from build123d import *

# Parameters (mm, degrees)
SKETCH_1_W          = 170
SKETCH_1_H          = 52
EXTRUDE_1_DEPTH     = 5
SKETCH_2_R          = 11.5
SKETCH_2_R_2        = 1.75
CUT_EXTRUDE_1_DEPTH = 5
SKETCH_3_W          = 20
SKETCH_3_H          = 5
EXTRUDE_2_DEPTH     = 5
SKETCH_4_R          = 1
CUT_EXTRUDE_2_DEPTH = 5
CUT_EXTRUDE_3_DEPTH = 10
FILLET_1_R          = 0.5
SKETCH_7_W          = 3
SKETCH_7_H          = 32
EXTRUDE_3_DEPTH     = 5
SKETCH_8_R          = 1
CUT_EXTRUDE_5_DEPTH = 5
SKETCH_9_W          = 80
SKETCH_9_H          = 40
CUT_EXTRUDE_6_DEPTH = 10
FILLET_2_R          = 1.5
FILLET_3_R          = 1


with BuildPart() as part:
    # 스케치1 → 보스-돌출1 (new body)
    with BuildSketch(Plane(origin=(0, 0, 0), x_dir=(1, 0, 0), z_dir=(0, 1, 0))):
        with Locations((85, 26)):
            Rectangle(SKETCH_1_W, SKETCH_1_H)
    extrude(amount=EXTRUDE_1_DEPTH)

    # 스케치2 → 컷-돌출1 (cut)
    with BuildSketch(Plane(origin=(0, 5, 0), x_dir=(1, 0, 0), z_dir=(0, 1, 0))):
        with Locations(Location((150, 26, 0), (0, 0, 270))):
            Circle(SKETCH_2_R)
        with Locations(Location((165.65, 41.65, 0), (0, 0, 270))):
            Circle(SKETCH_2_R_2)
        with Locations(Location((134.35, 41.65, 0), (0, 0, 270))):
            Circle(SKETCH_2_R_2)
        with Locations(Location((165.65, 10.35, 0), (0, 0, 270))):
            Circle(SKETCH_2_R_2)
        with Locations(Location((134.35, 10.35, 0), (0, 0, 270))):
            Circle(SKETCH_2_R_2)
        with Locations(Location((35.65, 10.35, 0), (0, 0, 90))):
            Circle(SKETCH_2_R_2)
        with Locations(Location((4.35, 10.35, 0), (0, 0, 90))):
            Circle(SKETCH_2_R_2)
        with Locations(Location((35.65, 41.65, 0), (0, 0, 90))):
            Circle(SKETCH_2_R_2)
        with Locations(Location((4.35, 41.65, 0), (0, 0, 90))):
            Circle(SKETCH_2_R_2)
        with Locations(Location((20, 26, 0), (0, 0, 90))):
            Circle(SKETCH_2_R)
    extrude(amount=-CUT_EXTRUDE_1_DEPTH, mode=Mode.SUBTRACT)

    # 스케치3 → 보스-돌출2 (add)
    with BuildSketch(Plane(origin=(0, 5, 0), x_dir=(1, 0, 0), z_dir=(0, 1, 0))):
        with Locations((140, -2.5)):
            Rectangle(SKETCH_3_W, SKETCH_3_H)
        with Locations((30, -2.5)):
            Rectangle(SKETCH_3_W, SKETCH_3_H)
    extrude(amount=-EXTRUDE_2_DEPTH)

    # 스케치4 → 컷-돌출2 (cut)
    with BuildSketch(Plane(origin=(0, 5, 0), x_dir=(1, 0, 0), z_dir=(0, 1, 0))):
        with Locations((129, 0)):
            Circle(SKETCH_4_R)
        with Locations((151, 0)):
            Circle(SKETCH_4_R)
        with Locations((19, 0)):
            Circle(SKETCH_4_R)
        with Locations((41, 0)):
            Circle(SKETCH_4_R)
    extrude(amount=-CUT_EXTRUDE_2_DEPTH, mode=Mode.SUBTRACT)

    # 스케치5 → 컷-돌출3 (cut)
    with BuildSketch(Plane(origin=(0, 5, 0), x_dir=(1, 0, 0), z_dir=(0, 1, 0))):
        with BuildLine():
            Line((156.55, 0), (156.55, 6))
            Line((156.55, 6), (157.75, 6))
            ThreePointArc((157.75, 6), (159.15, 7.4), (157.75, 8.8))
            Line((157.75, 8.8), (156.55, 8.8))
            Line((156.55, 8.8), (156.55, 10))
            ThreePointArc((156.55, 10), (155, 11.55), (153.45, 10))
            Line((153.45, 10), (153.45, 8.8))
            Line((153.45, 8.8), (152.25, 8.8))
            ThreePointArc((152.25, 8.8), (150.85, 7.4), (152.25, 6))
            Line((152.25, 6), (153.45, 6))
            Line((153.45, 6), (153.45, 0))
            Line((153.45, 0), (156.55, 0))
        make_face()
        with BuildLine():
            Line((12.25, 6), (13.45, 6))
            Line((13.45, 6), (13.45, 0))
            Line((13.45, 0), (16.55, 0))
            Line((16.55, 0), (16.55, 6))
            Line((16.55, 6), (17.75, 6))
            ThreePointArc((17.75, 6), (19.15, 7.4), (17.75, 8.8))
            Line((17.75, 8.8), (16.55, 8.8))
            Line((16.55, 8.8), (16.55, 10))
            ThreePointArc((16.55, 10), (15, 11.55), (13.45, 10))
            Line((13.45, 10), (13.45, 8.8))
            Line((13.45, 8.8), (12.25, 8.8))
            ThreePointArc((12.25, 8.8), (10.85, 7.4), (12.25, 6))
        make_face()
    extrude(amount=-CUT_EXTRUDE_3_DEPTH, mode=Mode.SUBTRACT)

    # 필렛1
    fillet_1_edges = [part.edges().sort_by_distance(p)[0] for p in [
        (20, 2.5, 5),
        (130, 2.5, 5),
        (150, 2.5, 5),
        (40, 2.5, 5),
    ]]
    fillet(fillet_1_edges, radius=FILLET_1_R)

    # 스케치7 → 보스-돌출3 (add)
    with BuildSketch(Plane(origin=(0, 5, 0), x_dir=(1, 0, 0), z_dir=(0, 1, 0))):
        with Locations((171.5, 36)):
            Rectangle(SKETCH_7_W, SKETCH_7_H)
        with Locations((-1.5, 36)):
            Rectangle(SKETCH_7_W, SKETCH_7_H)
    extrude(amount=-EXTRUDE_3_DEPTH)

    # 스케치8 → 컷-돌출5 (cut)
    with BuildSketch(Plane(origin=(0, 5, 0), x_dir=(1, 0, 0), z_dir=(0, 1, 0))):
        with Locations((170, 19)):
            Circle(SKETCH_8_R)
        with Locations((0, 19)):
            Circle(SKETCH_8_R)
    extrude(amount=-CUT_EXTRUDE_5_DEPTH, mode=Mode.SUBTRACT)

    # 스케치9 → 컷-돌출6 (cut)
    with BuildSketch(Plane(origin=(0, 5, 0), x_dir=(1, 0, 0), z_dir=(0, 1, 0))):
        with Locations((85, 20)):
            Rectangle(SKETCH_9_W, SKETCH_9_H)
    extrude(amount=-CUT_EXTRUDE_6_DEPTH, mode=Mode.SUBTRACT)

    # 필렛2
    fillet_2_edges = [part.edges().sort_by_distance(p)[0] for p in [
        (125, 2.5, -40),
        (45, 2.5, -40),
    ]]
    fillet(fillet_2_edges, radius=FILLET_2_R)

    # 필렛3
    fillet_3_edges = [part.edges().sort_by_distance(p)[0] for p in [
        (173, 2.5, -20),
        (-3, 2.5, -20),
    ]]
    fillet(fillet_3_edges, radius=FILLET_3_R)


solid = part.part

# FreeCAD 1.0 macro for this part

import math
import FreeCAD as App
import Part
import Sketcher
from FreeCAD import Vector
Q = App.Units.Quantity


def edges_at(feature, points):
    """Names of the edges that pass closest to the given points."""
    edges = feature.Shape.Edges
    near = lambda p: min(range(len(edges)), key=lambda i: edges[i].distToShape(Part.Vertex(*p))[0])
    return sorted({f"Edge{near(p) + 1}" for p in points})

doc = App.newDocument("Part")
body = doc.addObject("PartDesign::Body", "Body")

# Sketch on XZ plane
sketch1 = body.newObject("Sketcher::SketchObject", "Sketch")
sketch1.AttachmentSupport = (doc.getObject("XZ_Plane"), [""])
sketch1.MapMode = "FlatFace"
sketch1.addGeometry(Part.LineSegment(Vector(0, -52, 0), Vector(0, 0, 0)), False)
sketch1.addGeometry(Part.LineSegment(Vector(0, 0, 0), Vector(170, 0, 0)), False)
sketch1.addGeometry(Part.LineSegment(Vector(170, 0, 0), Vector(170, -52, 0)), False)
sketch1.addGeometry(Part.LineSegment(Vector(170, -52, 0), Vector(0, -52, 0)), False)
sketch1.addConstraint(Sketcher.Constraint("Coincident", 0, 2, 1, 1))
sketch1.addConstraint(Sketcher.Constraint("Coincident", 1, 2, 2, 1))
sketch1.addConstraint(Sketcher.Constraint("Coincident", 2, 2, 3, 1))
sketch1.addConstraint(Sketcher.Constraint("Coincident", 3, 2, 0, 1))
sketch1.addConstraint(Sketcher.Constraint("Vertical", 0))
sketch1.addConstraint(Sketcher.Constraint("Horizontal", 1))
sketch1.addConstraint(Sketcher.Constraint("Vertical", 2))
sketch1.addConstraint(Sketcher.Constraint("Horizontal", 3))
sketch1.addConstraint(Sketcher.Constraint("Coincident", 0, 2, -1, 1))
sketch1.addConstraint(Sketcher.Constraint("DistanceX", 1, 1, 1, 2, Q("170 mm")))
sketch1.addConstraint(Sketcher.Constraint("DistanceY", 0, 1, 0, 2, Q("52 mm")))
pad1 = body.newObject("PartDesign::Pad", "Pad")
pad1.Profile = sketch1
pad1.Length = 5
pad1.Reversed = True

# Sketch on XZ plane
sketch2 = body.newObject("Sketcher::SketchObject", "Sketch001")
sketch2.AttachmentSupport = (doc.getObject("XZ_Plane"), [""])
sketch2.MapMode = "FlatFace"
sketch2.AttachmentOffset = App.Placement(Vector(0, 0, -5), App.Rotation())
sketch2.addGeometry(Part.Circle(Vector(150, -26, 0), Vector(0, 0, 1), 11.5), False)
sketch2.addGeometry(Part.Circle(Vector(165.7, -41.6, 0), Vector(0, 0, 1), 1.8), False)
sketch2.addGeometry(Part.Circle(Vector(134.3, -41.6, 0), Vector(0, 0, 1), 1.8), False)
sketch2.addGeometry(Part.Circle(Vector(165.7, -10.3, 0), Vector(0, 0, 1), 1.8), False)
sketch2.addGeometry(Part.Circle(Vector(134.3, -10.3, 0), Vector(0, 0, 1), 1.8), False)
sketch2.addGeometry(Part.Circle(Vector(35.6, -10.3, 0), Vector(0, 0, 1), 1.8), False)
sketch2.addGeometry(Part.Circle(Vector(4.3, -10.3, 0), Vector(0, 0, 1), 1.8), False)
sketch2.addGeometry(Part.Circle(Vector(35.6, -41.6, 0), Vector(0, 0, 1), 1.8), False)
sketch2.addGeometry(Part.Circle(Vector(4.3, -41.6, 0), Vector(0, 0, 1), 1.8), False)
sketch2.addGeometry(Part.Circle(Vector(20, -26, 0), Vector(0, 0, 1), 11.5), False)
sketch2.addConstraint(Sketcher.Constraint("Equal", 1, 2))
sketch2.addConstraint(Sketcher.Constraint("Equal", 2, 3))
sketch2.addConstraint(Sketcher.Constraint("Equal", 3, 4))
sketch2.addConstraint(Sketcher.Constraint("Equal", 4, 5))
sketch2.addConstraint(Sketcher.Constraint("Equal", 5, 6))
sketch2.addConstraint(Sketcher.Constraint("Equal", 6, 7))
sketch2.addConstraint(Sketcher.Constraint("Equal", 7, 8))
sketch2.addConstraint(Sketcher.Constraint("Equal", 0, 9))
sketch2.addConstraint(Sketcher.Constraint("Horizontal", 1, 3, 2, 3))
sketch2.addConstraint(Sketcher.Constraint("Horizontal", 3, 3, 4, 3))
sketch2.addConstraint(Sketcher.Constraint("Horizontal", 4, 3, 5, 3))
sketch2.addConstraint(Sketcher.Constraint("Horizontal", 5, 3, 6, 3))
sketch2.addConstraint(Sketcher.Constraint("Horizontal", 2, 3, 7, 3))
sketch2.addConstraint(Sketcher.Constraint("Horizontal", 7, 3, 8, 3))
sketch2.addConstraint(Sketcher.Constraint("Horizontal", 0, 3, 9, 3))
sketch2.addConstraint(Sketcher.Constraint("Vertical", 1, 3, 3, 3))
sketch2.addConstraint(Sketcher.Constraint("Vertical", 2, 3, 4, 3))
sketch2.addConstraint(Sketcher.Constraint("Vertical", 5, 3, 7, 3))
sketch2.addConstraint(Sketcher.Constraint("Vertical", 6, 3, 8, 3))
sketch2.addConstraint(Sketcher.Constraint("Diameter", 0, Q("23 mm")))
sketch2.addConstraint(Sketcher.Constraint("Diameter", 1, Q("3.5 mm")))
sketch2.addConstraint(Sketcher.Constraint("DistanceX", -1, 1, 0, 3, Q("150 mm")))
sketch2.addConstraint(Sketcher.Constraint("DistanceY", 0, 3, -1, 1, Q("26 mm")))
sketch2.addConstraint(Sketcher.Constraint("DistanceX", -1, 1, 9, 3, Q("20 mm")))
sketch2.addConstraint(Sketcher.Constraint("DistanceX", 5, 3, 3, 3, Q("130 mm")))
sketch2.addConstraint(Sketcher.Constraint("DistanceX", 6, 3, 4, 3, Q("130 mm")))
sketch2.addConstraint(Sketcher.Constraint("DistanceX", 2, 3, 1, 3, Q("31.3 mm")))
sketch2.addConstraint(Sketcher.Constraint("DistanceY", 1, 3, 3, 3, Q("31.3 mm")))
sketch2.addConstraint(Sketcher.Constraint("DistanceX", -1, 1, 1, 3, Q("165.65 mm")))
sketch2.addConstraint(Sketcher.Constraint("DistanceY", 1, 3, -1, 1, Q("41.65 mm")))
pocket1 = body.newObject("PartDesign::Pocket", "Pocket")
pocket1.Profile = sketch2
pocket1.Length = 5
pocket1.Reversed = True

# Sketch on XZ plane
sketch3 = body.newObject("Sketcher::SketchObject", "Sketch002")
sketch3.AttachmentSupport = (doc.getObject("XZ_Plane"), [""])
sketch3.MapMode = "FlatFace"
sketch3.AttachmentOffset = App.Placement(Vector(0, 0, -5), App.Rotation())
sketch3.addGeometry(Part.LineSegment(Vector(130, 0, 0), Vector(130, 5, 0)), False)
sketch3.addGeometry(Part.LineSegment(Vector(130, 5, 0), Vector(150, 5, 0)), False)
sketch3.addGeometry(Part.LineSegment(Vector(150, 5, 0), Vector(150, 0, 0)), False)
sketch3.addGeometry(Part.LineSegment(Vector(150, 0, 0), Vector(130, 0, 0)), False)
sketch3.addGeometry(Part.LineSegment(Vector(20, 0, 0), Vector(20, 5, 0)), False)
sketch3.addGeometry(Part.LineSegment(Vector(20, 5, 0), Vector(40, 5, 0)), False)
sketch3.addGeometry(Part.LineSegment(Vector(40, 5, 0), Vector(40, 0, 0)), False)
sketch3.addGeometry(Part.LineSegment(Vector(40, 0, 0), Vector(20, 0, 0)), False)
sketch3.addConstraint(Sketcher.Constraint("Coincident", 0, 2, 1, 1))
sketch3.addConstraint(Sketcher.Constraint("Coincident", 1, 2, 2, 1))
sketch3.addConstraint(Sketcher.Constraint("Coincident", 2, 2, 3, 1))
sketch3.addConstraint(Sketcher.Constraint("Coincident", 3, 2, 0, 1))
sketch3.addConstraint(Sketcher.Constraint("Coincident", 4, 2, 5, 1))
sketch3.addConstraint(Sketcher.Constraint("Coincident", 5, 2, 6, 1))
sketch3.addConstraint(Sketcher.Constraint("Coincident", 6, 2, 7, 1))
sketch3.addConstraint(Sketcher.Constraint("Coincident", 7, 2, 4, 1))
sketch3.addConstraint(Sketcher.Constraint("Vertical", 0))
sketch3.addConstraint(Sketcher.Constraint("Horizontal", 1))
sketch3.addConstraint(Sketcher.Constraint("Vertical", 2))
sketch3.addConstraint(Sketcher.Constraint("Horizontal", 3))
sketch3.addConstraint(Sketcher.Constraint("Vertical", 4))
sketch3.addConstraint(Sketcher.Constraint("Horizontal", 5))
sketch3.addConstraint(Sketcher.Constraint("Vertical", 6))
sketch3.addConstraint(Sketcher.Constraint("Horizontal", 7))
sketch3.addConstraint(Sketcher.Constraint("PointOnObject", 2, 2, -1))
sketch3.addConstraint(Sketcher.Constraint("PointOnObject", 6, 2, -1))
sketch3.addConstraint(Sketcher.Constraint("Horizontal", 1, 2, 4, 2))
sketch3.addConstraint(Sketcher.Constraint("Equal", 3, 5))
sketch3.addConstraint(Sketcher.Constraint("DistanceX", 1, 1, 1, 2, Q("20 mm")))
sketch3.addConstraint(Sketcher.Constraint("DistanceY", 0, 1, 0, 2, Q("5 mm")))
sketch3.addConstraint(Sketcher.Constraint("DistanceX", -1, 1, 0, 2, Q("130 mm")))
sketch3.addConstraint(Sketcher.Constraint("DistanceX", -1, 1, 4, 2, Q("20 mm")))
pad2 = body.newObject("PartDesign::Pad", "Pad001")
pad2.Profile = sketch3
pad2.Length = 5

# Sketch on XZ plane
sketch4 = body.newObject("Sketcher::SketchObject", "Sketch003")
sketch4.AttachmentSupport = (doc.getObject("XZ_Plane"), [""])
sketch4.MapMode = "FlatFace"
sketch4.AttachmentOffset = App.Placement(Vector(0, 0, -5), App.Rotation())
sketch4.addGeometry(Part.Circle(Vector(129, 0, 0), Vector(0, 0, 1), 1), False)
sketch4.addGeometry(Part.Circle(Vector(151, 0, 0), Vector(0, 0, 1), 1), False)
sketch4.addGeometry(Part.Circle(Vector(19, 0, 0), Vector(0, 0, 1), 1), False)
sketch4.addGeometry(Part.Circle(Vector(41, 0, 0), Vector(0, 0, 1), 1), False)
sketch4.addConstraint(Sketcher.Constraint("Equal", 0, 1))
sketch4.addConstraint(Sketcher.Constraint("Equal", 1, 2))
sketch4.addConstraint(Sketcher.Constraint("Equal", 2, 3))
sketch4.addConstraint(Sketcher.Constraint("PointOnObject", 0, 3, -1))
sketch4.addConstraint(Sketcher.Constraint("PointOnObject", 1, 3, -1))
sketch4.addConstraint(Sketcher.Constraint("PointOnObject", 2, 3, -1))
sketch4.addConstraint(Sketcher.Constraint("PointOnObject", 3, 3, -1))
sketch4.addConstraint(Sketcher.Constraint("Diameter", 0, Q("2 mm")))
sketch4.addConstraint(Sketcher.Constraint("DistanceX", -1, 1, 0, 3, Q("129 mm")))
sketch4.addConstraint(Sketcher.Constraint("DistanceX", -1, 1, 1, 3, Q("151 mm")))
sketch4.addConstraint(Sketcher.Constraint("DistanceX", -1, 1, 2, 3, Q("19 mm")))
sketch4.addConstraint(Sketcher.Constraint("DistanceX", -1, 1, 3, 3, Q("41 mm")))
pocket2 = body.newObject("PartDesign::Pocket", "Pocket001")
pocket2.Profile = sketch4
pocket2.Length = 5
pocket2.Reversed = True

# Sketch on XZ plane
sketch5 = body.newObject("Sketcher::SketchObject", "Sketch004")
sketch5.AttachmentSupport = (doc.getObject("XZ_Plane"), [""])
sketch5.MapMode = "FlatFace"
sketch5.AttachmentOffset = App.Placement(Vector(0, 0, -5), App.Rotation())
sketch5.addGeometry(Part.LineSegment(Vector(156.6, 0, 0), Vector(156.6, -6, 0)), False)
sketch5.addGeometry(Part.LineSegment(Vector(156.6, -6, 0), Vector(157.8, -6, 0)), False)
sketch5.addGeometry(Part.ArcOfCircle(Part.Circle(Vector(157.8, -7.4, 0), Vector(0, 0, 1), 1.4), math.radians(-90), math.radians(90)), False)
sketch5.addGeometry(Part.LineSegment(Vector(157.8, -8.8, 0), Vector(156.6, -8.8, 0)), False)
sketch5.addGeometry(Part.LineSegment(Vector(156.6, -8.8, 0), Vector(156.6, -10, 0)), False)
sketch5.addGeometry(Part.ArcOfCircle(Part.Circle(Vector(155, -10, 0), Vector(0, 0, 1), 1.6), math.radians(180), math.radians(360)), False)
sketch5.addGeometry(Part.LineSegment(Vector(153.4, -10, 0), Vector(153.4, -8.8, 0)), False)
sketch5.addGeometry(Part.LineSegment(Vector(153.4, -8.8, 0), Vector(152.2, -8.8, 0)), False)
sketch5.addGeometry(Part.ArcOfCircle(Part.Circle(Vector(152.2, -7.4, 0), Vector(0, 0, 1), 1.4), math.radians(90), math.radians(270)), False)
sketch5.addGeometry(Part.LineSegment(Vector(152.2, -6, 0), Vector(153.4, -6, 0)), False)
sketch5.addGeometry(Part.LineSegment(Vector(153.4, -6, 0), Vector(153.4, 0, 0)), False)
sketch5.addGeometry(Part.LineSegment(Vector(153.4, 0, 0), Vector(156.6, 0, 0)), False)
sketch5.addGeometry(Part.LineSegment(Vector(12.2, -6, 0), Vector(13.4, -6, 0)), False)
sketch5.addGeometry(Part.LineSegment(Vector(13.4, -6, 0), Vector(13.4, 0, 0)), False)
sketch5.addGeometry(Part.LineSegment(Vector(13.4, 0, 0), Vector(16.6, 0, 0)), False)
sketch5.addGeometry(Part.LineSegment(Vector(16.6, 0, 0), Vector(16.6, -6, 0)), False)
sketch5.addGeometry(Part.LineSegment(Vector(16.6, -6, 0), Vector(17.8, -6, 0)), False)
sketch5.addGeometry(Part.ArcOfCircle(Part.Circle(Vector(17.8, -7.4, 0), Vector(0, 0, 1), 1.4), math.radians(-90), math.radians(90)), False)
sketch5.addGeometry(Part.LineSegment(Vector(17.8, -8.8, 0), Vector(16.6, -8.8, 0)), False)
sketch5.addGeometry(Part.LineSegment(Vector(16.6, -8.8, 0), Vector(16.6, -10, 0)), False)
sketch5.addGeometry(Part.ArcOfCircle(Part.Circle(Vector(15, -10, 0), Vector(0, 0, 1), 1.6), math.radians(180), math.radians(360)), False)
sketch5.addGeometry(Part.LineSegment(Vector(13.4, -10, 0), Vector(13.4, -8.8, 0)), False)
sketch5.addGeometry(Part.LineSegment(Vector(13.4, -8.8, 0), Vector(12.2, -8.8, 0)), False)
sketch5.addGeometry(Part.ArcOfCircle(Part.Circle(Vector(12.2, -7.4, 0), Vector(0, 0, 1), 1.4), math.radians(90), math.radians(270)), False)
sketch5.addConstraint(Sketcher.Constraint("Coincident", 0, 2, 1, 1))
sketch5.addConstraint(Sketcher.Constraint("Tangent", 1, 2, 2, 2))
sketch5.addConstraint(Sketcher.Constraint("Tangent", 2, 1, 3, 1))
sketch5.addConstraint(Sketcher.Constraint("Coincident", 3, 2, 4, 1))
sketch5.addConstraint(Sketcher.Constraint("Tangent", 4, 2, 5, 2))
sketch5.addConstraint(Sketcher.Constraint("Tangent", 5, 1, 6, 1))
sketch5.addConstraint(Sketcher.Constraint("Coincident", 6, 2, 7, 1))
sketch5.addConstraint(Sketcher.Constraint("Tangent", 7, 2, 8, 2))
sketch5.addConstraint(Sketcher.Constraint("Tangent", 8, 1, 9, 1))
sketch5.addConstraint(Sketcher.Constraint("Coincident", 9, 2, 10, 1))
sketch5.addConstraint(Sketcher.Constraint("Coincident", 10, 2, 11, 1))
sketch5.addConstraint(Sketcher.Constraint("Coincident", 11, 2, 0, 1))
sketch5.addConstraint(Sketcher.Constraint("Coincident", 12, 2, 13, 1))
sketch5.addConstraint(Sketcher.Constraint("Coincident", 13, 2, 14, 1))
sketch5.addConstraint(Sketcher.Constraint("Coincident", 14, 2, 15, 1))
sketch5.addConstraint(Sketcher.Constraint("Coincident", 15, 2, 16, 1))
sketch5.addConstraint(Sketcher.Constraint("Tangent", 16, 2, 17, 2))
sketch5.addConstraint(Sketcher.Constraint("Tangent", 17, 1, 18, 1))
sketch5.addConstraint(Sketcher.Constraint("Coincident", 18, 2, 19, 1))
sketch5.addConstraint(Sketcher.Constraint("Tangent", 19, 2, 20, 2))
sketch5.addConstraint(Sketcher.Constraint("Tangent", 20, 1, 21, 1))
sketch5.addConstraint(Sketcher.Constraint("Coincident", 21, 2, 22, 1))
sketch5.addConstraint(Sketcher.Constraint("Tangent", 22, 2, 23, 2))
sketch5.addConstraint(Sketcher.Constraint("Tangent", 23, 1, 12, 1))
sketch5.addConstraint(Sketcher.Constraint("Vertical", 0))
sketch5.addConstraint(Sketcher.Constraint("Horizontal", 1))
sketch5.addConstraint(Sketcher.Constraint("Horizontal", 3))
sketch5.addConstraint(Sketcher.Constraint("Vertical", 4))
sketch5.addConstraint(Sketcher.Constraint("Vertical", 6))
sketch5.addConstraint(Sketcher.Constraint("Horizontal", 7))
sketch5.addConstraint(Sketcher.Constraint("Horizontal", 9))
sketch5.addConstraint(Sketcher.Constraint("Vertical", 10))
sketch5.addConstraint(Sketcher.Constraint("Horizontal", 11))
sketch5.addConstraint(Sketcher.Constraint("Horizontal", 12))
sketch5.addConstraint(Sketcher.Constraint("Vertical", 13))
sketch5.addConstraint(Sketcher.Constraint("Horizontal", 14))
sketch5.addConstraint(Sketcher.Constraint("Vertical", 15))
sketch5.addConstraint(Sketcher.Constraint("Horizontal", 16))
sketch5.addConstraint(Sketcher.Constraint("Horizontal", 18))
sketch5.addConstraint(Sketcher.Constraint("Vertical", 19))
sketch5.addConstraint(Sketcher.Constraint("Vertical", 21))
sketch5.addConstraint(Sketcher.Constraint("Horizontal", 22))
sketch5.addConstraint(Sketcher.Constraint("Equal", 2, 8))
sketch5.addConstraint(Sketcher.Constraint("Equal", 8, 17))
sketch5.addConstraint(Sketcher.Constraint("Equal", 5, 20))
sketch5.addConstraint(Sketcher.Constraint("Equal", 17, 23))
sketch5.addConstraint(Sketcher.Constraint("PointOnObject", 10, 2, -1))
sketch5.addConstraint(Sketcher.Constraint("PointOnObject", 13, 2, -1))
sketch5.addConstraint(Sketcher.Constraint("Horizontal", 2, 3, 8, 3))
sketch5.addConstraint(Sketcher.Constraint("Horizontal", 8, 3, 17, 3))
sketch5.addConstraint(Sketcher.Constraint("Horizontal", 5, 3, 20, 3))
sketch5.addConstraint(Sketcher.Constraint("Horizontal", 17, 3, 23, 3))
sketch5.addConstraint(Sketcher.Constraint("Vertical", 0, 2, 3, 2))
sketch5.addConstraint(Sketcher.Constraint("Vertical", 6, 2, 9, 2))
sketch5.addConstraint(Sketcher.Constraint("Vertical", 15, 2, 18, 2))
sketch5.addConstraint(Sketcher.Constraint("Vertical", 13, 2, 20, 1))
sketch5.addConstraint(Sketcher.Constraint("Equal", 3, 7))
sketch5.addConstraint(Sketcher.Constraint("Equal", 9, 12))
sketch5.addConstraint(Sketcher.Constraint("Equal", 12, 16))
sketch5.addConstraint(Sketcher.Constraint("Equal", 22, 4))
sketch5.addConstraint(Sketcher.Constraint("Radius", 2, Q("1.4 mm")))
sketch5.addConstraint(Sketcher.Constraint("DistanceY", 0, 2, 0, 1, Q("6 mm")))
sketch5.addConstraint(Sketcher.Constraint("Radius", 5, Q("1.55 mm")))
sketch5.addConstraint(Sketcher.Constraint("DistanceX", 1, 1, 1, 2, Q("1.2 mm")))
sketch5.addConstraint(Sketcher.Constraint("DistanceX", -1, 1, 5, 3, Q("155 mm")))
sketch5.addConstraint(Sketcher.Constraint("DistanceX", -1, 1, 20, 3, Q("15 mm")))
pocket3 = body.newObject("PartDesign::Pocket", "Pocket002")
pocket3.Profile = sketch5
pocket3.Length = 10
pocket3.Reversed = True
doc.recompute()

fillet = body.newObject("PartDesign::Fillet", "Fillet")
fillet.Base = (pocket3, edges_at(pocket3, [
    (20, 2.5, 5),
    (130, 2.5, 5),
    (150, 2.5, 5),
    (40, 2.5, 5),
]))
fillet.Radius = 0.5

# Sketch on XZ plane
sketch6 = body.newObject("Sketcher::SketchObject", "Sketch005")
sketch6.AttachmentSupport = (doc.getObject("XZ_Plane"), [""])
sketch6.MapMode = "FlatFace"
sketch6.AttachmentOffset = App.Placement(Vector(0, 0, -5), App.Rotation())
sketch6.addGeometry(Part.LineSegment(Vector(170, -52, 0), Vector(170, -20, 0)), False)
sketch6.addGeometry(Part.LineSegment(Vector(170, -20, 0), Vector(173, -20, 0)), False)
sketch6.addGeometry(Part.LineSegment(Vector(173, -20, 0), Vector(173, -52, 0)), False)
sketch6.addGeometry(Part.LineSegment(Vector(173, -52, 0), Vector(170, -52, 0)), False)
sketch6.addGeometry(Part.LineSegment(Vector(-3, -52, 0), Vector(-3, -20, 0)), False)
sketch6.addGeometry(Part.LineSegment(Vector(-3, -20, 0), Vector(0, -20, 0)), False)
sketch6.addGeometry(Part.LineSegment(Vector(0, -20, 0), Vector(0, -52, 0)), False)
sketch6.addGeometry(Part.LineSegment(Vector(0, -52, 0), Vector(-3, -52, 0)), False)
sketch6.addConstraint(Sketcher.Constraint("Coincident", 0, 2, 1, 1))
sketch6.addConstraint(Sketcher.Constraint("Coincident", 1, 2, 2, 1))
sketch6.addConstraint(Sketcher.Constraint("Coincident", 2, 2, 3, 1))
sketch6.addConstraint(Sketcher.Constraint("Coincident", 3, 2, 0, 1))
sketch6.addConstraint(Sketcher.Constraint("Coincident", 4, 2, 5, 1))
sketch6.addConstraint(Sketcher.Constraint("Coincident", 5, 2, 6, 1))
sketch6.addConstraint(Sketcher.Constraint("Coincident", 6, 2, 7, 1))
sketch6.addConstraint(Sketcher.Constraint("Coincident", 7, 2, 4, 1))
sketch6.addConstraint(Sketcher.Constraint("Vertical", 0))
sketch6.addConstraint(Sketcher.Constraint("Horizontal", 1))
sketch6.addConstraint(Sketcher.Constraint("Vertical", 2))
sketch6.addConstraint(Sketcher.Constraint("Horizontal", 3))
sketch6.addConstraint(Sketcher.Constraint("Vertical", 4))
sketch6.addConstraint(Sketcher.Constraint("Horizontal", 5))
sketch6.addConstraint(Sketcher.Constraint("Vertical", 6))
sketch6.addConstraint(Sketcher.Constraint("Horizontal", 7))
sketch6.addConstraint(Sketcher.Constraint("PointOnObject", 5, 2, -2))
sketch6.addConstraint(Sketcher.Constraint("Horizontal", 1, 2, 4, 2))
sketch6.addConstraint(Sketcher.Constraint("Horizontal", 3, 2, 6, 2))
sketch6.addConstraint(Sketcher.Constraint("Equal", 3, 5))
sketch6.addConstraint(Sketcher.Constraint("DistanceX", 1, 1, 1, 2, Q("3 mm")))
sketch6.addConstraint(Sketcher.Constraint("DistanceY", 0, 1, 0, 2, Q("32 mm")))
sketch6.addConstraint(Sketcher.Constraint("DistanceX", -1, 1, 0, 2, Q("170 mm")))
sketch6.addConstraint(Sketcher.Constraint("DistanceY", 0, 2, -1, 1, Q("20 mm")))
pad3 = body.newObject("PartDesign::Pad", "Pad002")
pad3.Profile = sketch6
pad3.Length = 5

# Sketch on XZ plane
sketch7 = body.newObject("Sketcher::SketchObject", "Sketch006")
sketch7.AttachmentSupport = (doc.getObject("XZ_Plane"), [""])
sketch7.MapMode = "FlatFace"
sketch7.AttachmentOffset = App.Placement(Vector(0, 0, -5), App.Rotation())
sketch7.addGeometry(Part.Circle(Vector(170, -19, 0), Vector(0, 0, 1), 1), False)
sketch7.addGeometry(Part.Circle(Vector(0, -19, 0), Vector(0, 0, 1), 1), False)
sketch7.addConstraint(Sketcher.Constraint("Equal", 0, 1))
sketch7.addConstraint(Sketcher.Constraint("PointOnObject", 1, 3, -2))
sketch7.addConstraint(Sketcher.Constraint("Horizontal", 0, 3, 1, 3))
sketch7.addConstraint(Sketcher.Constraint("Diameter", 0, Q("2 mm")))
sketch7.addConstraint(Sketcher.Constraint("DistanceX", -1, 1, 0, 3, Q("170 mm")))
sketch7.addConstraint(Sketcher.Constraint("DistanceY", 0, 3, -1, 1, Q("19 mm")))
pocket4 = body.newObject("PartDesign::Pocket", "Pocket003")
pocket4.Profile = sketch7
pocket4.Length = 5
pocket4.Reversed = True

# Sketch on XZ plane
sketch8 = body.newObject("Sketcher::SketchObject", "Sketch007")
sketch8.AttachmentSupport = (doc.getObject("XZ_Plane"), [""])
sketch8.MapMode = "FlatFace"
sketch8.AttachmentOffset = App.Placement(Vector(0, 0, -5), App.Rotation())
sketch8.addGeometry(Part.LineSegment(Vector(45, -40, 0), Vector(45, 0, 0)), False)
sketch8.addGeometry(Part.LineSegment(Vector(45, 0, 0), Vector(125, 0, 0)), False)
sketch8.addGeometry(Part.LineSegment(Vector(125, 0, 0), Vector(125, -40, 0)), False)
sketch8.addGeometry(Part.LineSegment(Vector(125, -40, 0), Vector(45, -40, 0)), False)
sketch8.addConstraint(Sketcher.Constraint("Coincident", 0, 2, 1, 1))
sketch8.addConstraint(Sketcher.Constraint("Coincident", 1, 2, 2, 1))
sketch8.addConstraint(Sketcher.Constraint("Coincident", 2, 2, 3, 1))
sketch8.addConstraint(Sketcher.Constraint("Coincident", 3, 2, 0, 1))
sketch8.addConstraint(Sketcher.Constraint("Vertical", 0))
sketch8.addConstraint(Sketcher.Constraint("Horizontal", 1))
sketch8.addConstraint(Sketcher.Constraint("Vertical", 2))
sketch8.addConstraint(Sketcher.Constraint("Horizontal", 3))
sketch8.addConstraint(Sketcher.Constraint("PointOnObject", 0, 2, -1))
sketch8.addConstraint(Sketcher.Constraint("DistanceX", 1, 1, 1, 2, Q("80 mm")))
sketch8.addConstraint(Sketcher.Constraint("DistanceY", 0, 1, 0, 2, Q("40 mm")))
sketch8.addConstraint(Sketcher.Constraint("DistanceX", -1, 1, 0, 2, Q("45 mm")))
pocket5 = body.newObject("PartDesign::Pocket", "Pocket004")
pocket5.Profile = sketch8
pocket5.Length = 10
pocket5.Reversed = True
doc.recompute()

fillet2 = body.newObject("PartDesign::Fillet", "Fillet001")
fillet2.Base = (pocket5, edges_at(pocket5, [(125, 2.5, -40), (45, 2.5, -40)]))
fillet2.Radius = 1.5
doc.recompute()

fillet3 = body.newObject("PartDesign::Fillet", "Fillet002")
fillet3.Base = (fillet2, edges_at(fillet2, [(173, 2.5, -20), (-3, 2.5, -20)]))
fillet3.Radius = 1

doc.recompute()
